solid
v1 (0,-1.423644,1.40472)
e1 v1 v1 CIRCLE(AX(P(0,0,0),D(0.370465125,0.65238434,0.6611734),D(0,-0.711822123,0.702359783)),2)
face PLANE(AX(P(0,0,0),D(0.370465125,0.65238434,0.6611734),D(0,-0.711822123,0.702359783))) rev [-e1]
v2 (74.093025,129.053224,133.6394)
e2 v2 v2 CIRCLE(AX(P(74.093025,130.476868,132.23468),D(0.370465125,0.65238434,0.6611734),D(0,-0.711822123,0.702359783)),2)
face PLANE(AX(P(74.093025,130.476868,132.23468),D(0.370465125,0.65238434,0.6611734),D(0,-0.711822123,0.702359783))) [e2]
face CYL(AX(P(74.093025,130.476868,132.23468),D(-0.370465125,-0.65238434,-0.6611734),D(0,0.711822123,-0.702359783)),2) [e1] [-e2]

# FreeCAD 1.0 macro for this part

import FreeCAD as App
import Part
import Sketcher

V = App.Vector
Q = App.Units.Quantity

doc = App.newDocument("Part")
body = doc.addObject("PartDesign::Body", "Body")

# Sketch on an angled plane
sketch1 = doc.addObject("Sketcher::SketchObject", "Sketch")
body.addObject(sketch1)
sketch1.Placement = App.Placement(V(0, 0, 0), App.Rotation(V(0.541510579, 0.426644859, -0.724389713), V(-0.754666737, 0.626393516, -0.195215981), V(0.370465125, 0.65238434, 0.6611734), "ZXY"))
sketch1.addGeometry(Part.Circle(V(0, 0, 0), V(0, 0, 1), 2), False)
sketch1.addConstraint([
    Sketcher.Constraint("Coincident", 0, 3, -1, 1),
    Sketcher.Constraint("Diameter", 0, Q("4 mm")),
])
pad1 = doc.addObject("PartDesign::Pad", "Pad")
body.addObject(pad1)
pad1.Profile = sketch1
pad1.Length = 200

doc.recompute()
